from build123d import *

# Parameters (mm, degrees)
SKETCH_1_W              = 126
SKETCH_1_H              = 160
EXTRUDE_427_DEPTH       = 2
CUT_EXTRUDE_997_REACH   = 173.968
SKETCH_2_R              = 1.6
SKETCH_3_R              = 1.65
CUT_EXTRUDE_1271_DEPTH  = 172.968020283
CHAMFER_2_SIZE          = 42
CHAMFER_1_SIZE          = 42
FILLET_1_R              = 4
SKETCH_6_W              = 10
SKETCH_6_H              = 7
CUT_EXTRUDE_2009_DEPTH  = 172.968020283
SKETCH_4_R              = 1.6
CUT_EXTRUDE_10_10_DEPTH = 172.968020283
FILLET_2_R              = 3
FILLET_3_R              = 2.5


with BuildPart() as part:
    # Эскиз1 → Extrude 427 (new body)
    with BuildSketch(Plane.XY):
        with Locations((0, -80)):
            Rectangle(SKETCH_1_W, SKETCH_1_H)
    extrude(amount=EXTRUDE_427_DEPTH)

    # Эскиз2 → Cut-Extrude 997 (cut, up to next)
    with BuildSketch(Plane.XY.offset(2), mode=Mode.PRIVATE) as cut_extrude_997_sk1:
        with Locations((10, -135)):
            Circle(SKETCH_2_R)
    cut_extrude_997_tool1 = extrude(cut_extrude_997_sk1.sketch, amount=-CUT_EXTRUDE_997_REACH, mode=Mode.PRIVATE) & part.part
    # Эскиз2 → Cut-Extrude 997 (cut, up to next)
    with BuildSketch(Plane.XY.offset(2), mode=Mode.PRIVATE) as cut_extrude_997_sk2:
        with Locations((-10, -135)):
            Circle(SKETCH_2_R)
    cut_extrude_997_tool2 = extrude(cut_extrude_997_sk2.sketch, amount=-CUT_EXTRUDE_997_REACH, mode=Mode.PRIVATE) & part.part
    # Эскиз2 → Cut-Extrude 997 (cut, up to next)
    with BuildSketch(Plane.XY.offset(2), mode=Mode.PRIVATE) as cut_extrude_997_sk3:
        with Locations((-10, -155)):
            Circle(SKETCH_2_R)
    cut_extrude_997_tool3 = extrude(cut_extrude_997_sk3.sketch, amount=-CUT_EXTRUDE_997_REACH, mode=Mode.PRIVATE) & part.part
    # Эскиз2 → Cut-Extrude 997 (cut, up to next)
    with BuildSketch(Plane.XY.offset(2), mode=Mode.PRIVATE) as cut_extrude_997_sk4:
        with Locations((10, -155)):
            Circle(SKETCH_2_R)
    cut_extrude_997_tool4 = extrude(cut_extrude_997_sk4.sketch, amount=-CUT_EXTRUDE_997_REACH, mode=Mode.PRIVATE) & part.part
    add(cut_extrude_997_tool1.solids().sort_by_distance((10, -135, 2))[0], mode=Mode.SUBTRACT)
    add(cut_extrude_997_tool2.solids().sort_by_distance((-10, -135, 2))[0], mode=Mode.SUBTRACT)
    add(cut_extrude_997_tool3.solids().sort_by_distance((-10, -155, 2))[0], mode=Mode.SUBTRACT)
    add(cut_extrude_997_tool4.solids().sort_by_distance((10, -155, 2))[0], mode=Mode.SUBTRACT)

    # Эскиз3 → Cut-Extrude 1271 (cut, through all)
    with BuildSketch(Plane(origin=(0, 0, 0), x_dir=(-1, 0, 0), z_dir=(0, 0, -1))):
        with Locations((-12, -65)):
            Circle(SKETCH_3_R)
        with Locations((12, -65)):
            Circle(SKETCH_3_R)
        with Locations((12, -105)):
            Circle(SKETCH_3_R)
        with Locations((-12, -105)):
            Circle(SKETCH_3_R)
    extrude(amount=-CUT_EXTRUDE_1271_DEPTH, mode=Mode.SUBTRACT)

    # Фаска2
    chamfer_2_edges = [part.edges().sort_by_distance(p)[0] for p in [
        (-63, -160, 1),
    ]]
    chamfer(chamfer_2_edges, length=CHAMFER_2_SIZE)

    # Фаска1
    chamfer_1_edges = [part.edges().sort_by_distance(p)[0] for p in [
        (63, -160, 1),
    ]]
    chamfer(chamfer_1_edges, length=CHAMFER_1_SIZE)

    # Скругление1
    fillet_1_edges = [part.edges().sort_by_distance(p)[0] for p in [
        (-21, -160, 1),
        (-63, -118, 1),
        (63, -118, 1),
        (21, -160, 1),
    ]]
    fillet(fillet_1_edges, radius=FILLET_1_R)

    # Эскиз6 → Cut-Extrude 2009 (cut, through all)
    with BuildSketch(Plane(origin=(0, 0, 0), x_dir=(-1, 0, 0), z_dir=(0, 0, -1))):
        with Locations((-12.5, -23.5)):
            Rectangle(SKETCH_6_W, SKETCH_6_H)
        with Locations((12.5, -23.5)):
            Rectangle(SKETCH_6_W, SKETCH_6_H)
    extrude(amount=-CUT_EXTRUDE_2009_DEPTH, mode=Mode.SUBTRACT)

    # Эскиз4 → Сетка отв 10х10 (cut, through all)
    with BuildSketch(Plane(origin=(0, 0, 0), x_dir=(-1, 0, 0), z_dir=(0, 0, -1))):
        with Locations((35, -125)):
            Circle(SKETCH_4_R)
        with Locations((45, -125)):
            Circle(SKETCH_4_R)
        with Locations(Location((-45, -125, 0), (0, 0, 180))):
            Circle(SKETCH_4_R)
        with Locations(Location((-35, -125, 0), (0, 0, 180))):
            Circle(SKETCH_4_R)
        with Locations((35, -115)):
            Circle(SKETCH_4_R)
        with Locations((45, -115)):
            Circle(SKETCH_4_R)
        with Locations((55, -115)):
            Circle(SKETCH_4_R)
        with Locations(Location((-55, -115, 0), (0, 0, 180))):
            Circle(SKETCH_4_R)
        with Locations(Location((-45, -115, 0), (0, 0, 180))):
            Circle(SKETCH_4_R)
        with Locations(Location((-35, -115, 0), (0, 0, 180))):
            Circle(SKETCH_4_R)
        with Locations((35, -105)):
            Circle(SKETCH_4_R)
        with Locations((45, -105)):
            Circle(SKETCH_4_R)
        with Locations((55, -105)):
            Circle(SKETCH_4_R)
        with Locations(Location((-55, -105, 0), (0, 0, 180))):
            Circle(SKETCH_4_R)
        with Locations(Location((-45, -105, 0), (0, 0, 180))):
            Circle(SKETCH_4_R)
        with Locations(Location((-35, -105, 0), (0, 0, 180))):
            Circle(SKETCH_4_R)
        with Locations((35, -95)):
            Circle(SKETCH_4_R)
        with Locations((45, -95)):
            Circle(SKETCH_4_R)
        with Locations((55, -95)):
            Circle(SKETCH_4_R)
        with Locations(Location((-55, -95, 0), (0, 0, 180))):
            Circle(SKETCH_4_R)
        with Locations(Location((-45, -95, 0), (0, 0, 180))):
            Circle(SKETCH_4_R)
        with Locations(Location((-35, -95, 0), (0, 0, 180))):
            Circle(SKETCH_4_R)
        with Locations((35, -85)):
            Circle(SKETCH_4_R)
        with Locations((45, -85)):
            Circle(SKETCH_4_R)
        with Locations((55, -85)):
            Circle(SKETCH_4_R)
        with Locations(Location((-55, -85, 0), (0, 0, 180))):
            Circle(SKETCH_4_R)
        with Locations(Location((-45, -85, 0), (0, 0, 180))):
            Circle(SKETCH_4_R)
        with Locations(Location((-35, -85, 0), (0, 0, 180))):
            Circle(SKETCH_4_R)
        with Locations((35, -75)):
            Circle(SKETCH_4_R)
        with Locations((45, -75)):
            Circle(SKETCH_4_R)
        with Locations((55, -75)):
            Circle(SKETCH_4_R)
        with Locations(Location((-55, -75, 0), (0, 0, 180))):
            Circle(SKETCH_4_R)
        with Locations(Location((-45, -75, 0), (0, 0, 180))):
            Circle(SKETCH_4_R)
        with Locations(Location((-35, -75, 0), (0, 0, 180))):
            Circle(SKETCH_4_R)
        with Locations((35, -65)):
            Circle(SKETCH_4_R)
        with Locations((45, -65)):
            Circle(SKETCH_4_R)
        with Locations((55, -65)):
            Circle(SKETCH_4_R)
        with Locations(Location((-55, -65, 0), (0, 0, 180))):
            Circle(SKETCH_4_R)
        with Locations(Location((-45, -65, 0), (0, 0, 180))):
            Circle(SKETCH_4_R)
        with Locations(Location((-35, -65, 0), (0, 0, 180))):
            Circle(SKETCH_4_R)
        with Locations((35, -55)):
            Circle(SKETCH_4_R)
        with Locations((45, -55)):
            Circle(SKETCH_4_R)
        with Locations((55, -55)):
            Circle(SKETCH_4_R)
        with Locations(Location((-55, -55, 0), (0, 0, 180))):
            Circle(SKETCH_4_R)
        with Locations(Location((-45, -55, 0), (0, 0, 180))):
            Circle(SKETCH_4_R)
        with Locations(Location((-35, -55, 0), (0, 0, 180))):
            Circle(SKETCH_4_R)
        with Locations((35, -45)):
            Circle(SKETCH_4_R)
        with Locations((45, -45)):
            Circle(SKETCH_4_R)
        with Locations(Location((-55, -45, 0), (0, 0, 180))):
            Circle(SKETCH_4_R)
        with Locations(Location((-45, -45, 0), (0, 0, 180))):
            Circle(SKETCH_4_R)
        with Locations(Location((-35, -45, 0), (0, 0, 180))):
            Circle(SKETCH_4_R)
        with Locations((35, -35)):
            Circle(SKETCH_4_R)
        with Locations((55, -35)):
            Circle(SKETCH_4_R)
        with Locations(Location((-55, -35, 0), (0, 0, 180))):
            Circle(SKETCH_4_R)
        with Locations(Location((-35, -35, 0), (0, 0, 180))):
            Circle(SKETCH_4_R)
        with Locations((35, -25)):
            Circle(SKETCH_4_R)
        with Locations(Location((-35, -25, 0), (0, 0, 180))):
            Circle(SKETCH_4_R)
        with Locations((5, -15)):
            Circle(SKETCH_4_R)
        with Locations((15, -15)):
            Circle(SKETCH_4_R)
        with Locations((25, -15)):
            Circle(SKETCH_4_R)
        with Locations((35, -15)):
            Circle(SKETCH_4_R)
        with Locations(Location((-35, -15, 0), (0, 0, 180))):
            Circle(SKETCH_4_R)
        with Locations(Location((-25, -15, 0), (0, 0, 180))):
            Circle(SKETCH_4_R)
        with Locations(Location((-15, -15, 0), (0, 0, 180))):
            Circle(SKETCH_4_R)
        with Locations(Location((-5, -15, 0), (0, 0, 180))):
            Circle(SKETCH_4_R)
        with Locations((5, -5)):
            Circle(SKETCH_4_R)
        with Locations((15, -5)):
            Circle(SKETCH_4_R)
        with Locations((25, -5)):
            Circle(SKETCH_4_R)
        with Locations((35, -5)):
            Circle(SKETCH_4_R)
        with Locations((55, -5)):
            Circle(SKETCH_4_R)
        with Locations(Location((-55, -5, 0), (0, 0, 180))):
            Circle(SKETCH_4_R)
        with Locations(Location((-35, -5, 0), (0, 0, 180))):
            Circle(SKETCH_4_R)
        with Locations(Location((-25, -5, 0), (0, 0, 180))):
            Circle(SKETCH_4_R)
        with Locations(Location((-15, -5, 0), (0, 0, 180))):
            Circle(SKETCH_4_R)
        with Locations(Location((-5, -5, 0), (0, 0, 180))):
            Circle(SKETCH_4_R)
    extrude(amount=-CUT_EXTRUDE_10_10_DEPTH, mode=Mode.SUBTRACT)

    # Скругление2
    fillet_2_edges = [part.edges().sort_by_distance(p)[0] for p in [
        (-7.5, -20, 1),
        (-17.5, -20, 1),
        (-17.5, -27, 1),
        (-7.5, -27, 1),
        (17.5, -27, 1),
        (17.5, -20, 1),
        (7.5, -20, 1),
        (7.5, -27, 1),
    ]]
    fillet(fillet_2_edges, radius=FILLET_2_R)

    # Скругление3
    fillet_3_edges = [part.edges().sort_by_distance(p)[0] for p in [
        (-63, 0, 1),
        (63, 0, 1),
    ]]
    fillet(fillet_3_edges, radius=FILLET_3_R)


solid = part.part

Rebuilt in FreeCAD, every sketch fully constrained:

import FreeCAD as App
import Part
import Sketcher
from FreeCAD import Vector


def edges_at(feature, points):
    """Names of the edges that pass closest to the given points."""
    edges = feature.Shape.Edges
    near = lambda p: min(range(len(edges)), key=lambda i: edges[i].distToShape(Part.Vertex(*p))[0])
    return sorted({f"Edge{near(p) + 1}" for p in points})

doc = App.newDocument("Part")
body = doc.addObject("PartDesign::Body", "Body")

sketch1 = body.newObject("Sketcher::SketchObject", "Sketch")
sketch1.AttachmentSupport = (doc.getObject("XY_Plane"), [""])
sketch1.MapMode = "FlatFace"
sketch1.addGeometry(Part.LineSegment(Vector(-63, 0, 0), Vector(-63, -160, 0)), False)
sketch1.addGeometry(Part.LineSegment(Vector(-63, -160, 0), Vector(63, -160, 0)), False)
sketch1.addGeometry(Part.LineSegment(Vector(63, -160, 0), Vector(63, 0, 0)), False)
sketch1.addGeometry(Part.LineSegment(Vector(63, 0, 0), Vector(-63, 0, 0)), False)
sketch1.addConstraint(Sketcher.Constraint("Coincident", 0, 2, 1, 1))
sketch1.addConstraint(Sketcher.Constraint("Coincident", 1, 2, 2, 1))
sketch1.addConstraint(Sketcher.Constraint("Coincident", 2, 2, 3, 1))
sketch1.addConstraint(Sketcher.Constraint("Coincident", 3, 2, 0, 1))
sketch1.addConstraint(Sketcher.Constraint("Vertical", 0))
sketch1.addConstraint(Sketcher.Constraint("Horizontal", 1))
sketch1.addConstraint(Sketcher.Constraint("Vertical", 2))
sketch1.addConstraint(Sketcher.Constraint("Horizontal", 3))
sketch1.addConstraint(Sketcher.Constraint("Symmetric", 2, 2, 3, 2, -1, 1))
sketch1.addConstraint(Sketcher.Constraint("DistanceX", 1, 1, 1, 2, 126.0))
sketch1.addConstraint(Sketcher.Constraint("DistanceY", 0, 2, 0, 1, 160.0))
pad1 = body.newObject("PartDesign::Pad", "Pad")
pad1.Profile = sketch1
pad1.Length = 2

sketch2 = body.newObject("Sketcher::SketchObject", "Sketch001")
sketch2.AttachmentSupport = (doc.getObject("XY_Plane"), [""])
sketch2.MapMode = "FlatFace"
sketch2.AttachmentOffset = App.Placement(Vector(0, 0, 2), App.Rotation())
sketch2.addGeometry(Part.Circle(Vector(10, -135, 0), Vector(0, 0, 1), 1.6), False)
sketch2.addConstraint(Sketcher.Constraint("Diameter", 0, 3.2))
sketch2.addConstraint(Sketcher.Constraint("DistanceX", -1, 1, 0, 3, 10.0))
sketch2.addConstraint(Sketcher.Constraint("DistanceY", 0, 3, -1, 1, 135.0))
pocket1 = body.newObject("PartDesign::Pocket", "Pocket")
pocket1.Profile = sketch2
pocket1.Type = "UpToFirst"

sketch3 = body.newObject("Sketcher::SketchObject", "Sketch002")
sketch3.AttachmentSupport = (doc.getObject("XY_Plane"), [""])
sketch3.MapMode = "FlatFace"
sketch3.AttachmentOffset = App.Placement(Vector(0, 0, 2), App.Rotation())
sketch3.addGeometry(Part.Circle(Vector(-10, -135, 0), Vector(0, 0, 1), 1.6), False)
sketch3.addConstraint(Sketcher.Constraint("Diameter", 0, 3.2))
sketch3.addConstraint(Sketcher.Constraint("DistanceX", 0, 3, -1, 1, 10.0))
sketch3.addConstraint(Sketcher.Constraint("DistanceY", 0, 3, -1, 1, 135.0))
pocket2 = body.newObject("PartDesign::Pocket", "Pocket001")
pocket2.Profile = sketch3
pocket2.Type = "UpToFirst"

sketch4 = body.newObject("Sketcher::SketchObject", "Sketch003")
sketch4.AttachmentSupport = (doc.getObject("XY_Plane"), [""])
sketch4.MapMode = "FlatFace"
sketch4.AttachmentOffset = App.Placement(Vector(0, 0, 2), App.Rotation())
sketch4.addGeometry(Part.Circle(Vector(-10, -155, 0), Vector(0, 0, 1), 1.6), False)
sketch4.addConstraint(Sketcher.Constraint("Diameter", 0, 3.2))
sketch4.addConstraint(Sketcher.Constraint("DistanceX", 0, 3, -1, 1, 10.0))
sketch4.addConstraint(Sketcher.Constraint("DistanceY", 0, 3, -1, 1, 155.0))
pocket3 = body.newObject("PartDesign::Pocket", "Pocket002")
pocket3.Profile = sketch4
pocket3.Type = "UpToFirst"

sketch5 = body.newObject("Sketcher::SketchObject", "Sketch004")
sketch5.AttachmentSupport = (doc.getObject("XY_Plane"), [""])
sketch5.MapMode = "FlatFace"
sketch5.AttachmentOffset = App.Placement(Vector(0, 0, 2), App.Rotation())
sketch5.addGeometry(Part.Circle(Vector(10, -155, 0), Vector(0, 0, 1), 1.6), False)
sketch5.addConstraint(Sketcher.Constraint("Diameter", 0, 3.2))
sketch5.addConstraint(Sketcher.Constraint("DistanceX", -1, 1, 0, 3, 10.0))
sketch5.addConstraint(Sketcher.Constraint("DistanceY", 0, 3, -1, 1, 155.0))
pocket4 = body.newObject("PartDesign::Pocket", "Pocket003")
pocket4.Profile = sketch5
pocket4.Type = "UpToFirst"

sketch6 = body.newObject("Sketcher::SketchObject", "Sketch005")
sketch6.AttachmentSupport = (doc.getObject("XY_Plane"), [""])
sketch6.MapMode = "FlatFace"
sketch6.addGeometry(Part.Circle(Vector(12, -65, 0), Vector(0, 0, 1), 1.6), False)
sketch6.addGeometry(Part.Circle(Vector(-12, -65, 0), Vector(0, 0, 1), 1.6), False)
sketch6.addGeometry(Part.Circle(Vector(-12, -105, 0), Vector(0, 0, 1), 1.6), False)
sketch6.addGeometry(Part.Circle(Vector(12, -105, 0), Vector(0, 0, 1), 1.6), False)
sketch6.addConstraint(Sketcher.Constraint("Equal", 0, 1))
sketch6.addConstraint(Sketcher.Constraint("Equal", 1, 2))
sketch6.addConstraint(Sketcher.Constraint("Equal", 2, 3))
sketch6.addConstraint(Sketcher.Constraint("Symmetric", 0, 3, 1, 3, -2))
sketch6.addConstraint(Sketcher.Constraint("Symmetric", 2, 3, 3, 3, -2))
sketch6.addConstraint(Sketcher.Constraint("Vertical", 1, 3, 2, 3))
sketch6.addConstraint(Sketcher.Constraint("Diameter", 0, 3.3))
sketch6.addConstraint(Sketcher.Constraint("DistanceX", -1, 1, 0, 3, 12.0))
sketch6.addConstraint(Sketcher.Constraint("DistanceY", 0, 3, -1, 1, 65.0))
sketch6.addConstraint(Sketcher.Constraint("DistanceY", 2, 3, -1, 1, 105.0))
pocket5 = body.newObject("PartDesign::Pocket", "Pocket004")
pocket5.Profile = sketch6
pocket5.Type = "ThroughAll"
pocket5.Reversed = True
doc.recompute()

chamfer = body.newObject("PartDesign::Chamfer", "Chamfer")
chamfer.Base = (pocket5, edges_at(pocket5, [(-63, -160, 1)]))
chamfer.Size = 42
doc.recompute()

chamfer2 = body.newObject("PartDesign::Chamfer", "Chamfer001")
chamfer2.Base = (chamfer, edges_at(chamfer, [(63, -160, 1)]))
chamfer2.Size = 42
doc.recompute()

fillet = body.newObject("PartDesign::Fillet", "Fillet")
fillet.Base = (chamfer2, edges_at(chamfer2, [
    (-21, -160, 1),
    (-63, -118, 1),
    (63, -118, 1),
    (21, -160, 1),
]))
fillet.Radius = 4

sketch7 = body.newObject("Sketcher::SketchObject", "Sketch006")
sketch7.AttachmentSupport = (doc.getObject("XY_Plane"), [""])
sketch7.MapMode = "FlatFace"
sketch7.addGeometry(Part.LineSegment(Vector(18, -20, 0), Vector(18, -27, 0)), False)
sketch7.addGeometry(Part.LineSegment(Vector(18, -27, 0), Vector(8, -27, 0)), False)
sketch7.addGeometry(Part.LineSegment(Vector(8, -27, 0), Vector(8, -20, 0)), False)
sketch7.addGeometry(Part.LineSegment(Vector(8, -20, 0), Vector(18, -20, 0)), False)
sketch7.addGeometry(Part.LineSegment(Vector(-8, -20, 0), Vector(-8, -27, 0)), False)
sketch7.addGeometry(Part.LineSegment(Vector(-8, -27, 0), Vector(-18, -27, 0)), False)
sketch7.addGeometry(Part.LineSegment(Vector(-18, -27, 0), Vector(-18, -20, 0)), False)
sketch7.addGeometry(Part.LineSegment(Vector(-18, -20, 0), Vector(-8, -20, 0)), False)
sketch7.addConstraint(Sketcher.Constraint("Coincident", 0, 2, 1, 1))
sketch7.addConstraint(Sketcher.Constraint("Coincident", 1, 2, 2, 1))
sketch7.addConstraint(Sketcher.Constraint("Coincident", 2, 2, 3, 1))
sketch7.addConstraint(Sketcher.Constraint("Coincident", 3, 2, 0, 1))
sketch7.addConstraint(Sketcher.Constraint("Coincident", 4, 2, 5, 1))
sketch7.addConstraint(Sketcher.Constraint("Coincident", 5, 2, 6, 1))
sketch7.addConstraint(Sketcher.Constraint("Coincident", 6, 2, 7, 1))
sketch7.addConstraint(Sketcher.Constraint("Coincident", 7, 2, 4, 1))
sketch7.addConstraint(Sketcher.Constraint("Vertical", 0))
sketch7.addConstraint(Sketcher.Constraint("Horizontal", 1))
sketch7.addConstraint(Sketcher.Constraint("Vertical", 2))
sketch7.addConstraint(Sketcher.Constraint("Horizontal", 3))
sketch7.addConstraint(Sketcher.Constraint("Vertical", 4))
sketch7.addConstraint(Sketcher.Constraint("Horizontal", 5))
sketch7.addConstraint(Sketcher.Constraint("Vertical", 6))
sketch7.addConstraint(Sketcher.Constraint("Horizontal", 7))
sketch7.addConstraint(Sketcher.Constraint("Symmetric", 1, 2, 4, 2, -2))
sketch7.addConstraint(Sketcher.Constraint("Symmetric", 3, 2, 6, 2, -2))
sketch7.addConstraint(Sketcher.Constraint("DistanceX", 1, 2, 1, 1, 10.0))
sketch7.addConstraint(Sketcher.Constraint("DistanceY", 0, 2, 0, 1, 7.0))
sketch7.addConstraint(Sketcher.Constraint("DistanceY", 0, 2, -1, 1, 27.0))
sketch7.addConstraint(Sketcher.Constraint("DistanceX", 4, 2, 1, 2, 15.0))
pocket6 = body.newObject("PartDesign::Pocket", "Pocket005")
pocket6.Profile = sketch7
pocket6.Type = "ThroughAll"
pocket6.Reversed = True

sketch8 = body.newObject("Sketcher::SketchObject", "Sketch007")
sketch8.AttachmentSupport = (doc.getObject("XY_Plane"), [""])
sketch8.MapMode = "FlatFace"
sketch8.addGeometry(Part.Circle(Vector(-35, -125, 0), Vector(0, 0, 1), 1.6), False)
sketch8.addGeometry(Part.Circle(Vector(-45, -125, 0), Vector(0, 0, 1), 1.6), False)
sketch8.addGeometry(Part.Circle(Vector(45, -125, 0), Vector(0, 0, 1), 1.6), False)
sketch8.addGeometry(Part.Circle(Vector(35, -125, 0), Vector(0, 0, 1), 1.6), False)
sketch8.addGeometry(Part.Circle(Vector(-35, -115, 0), Vector(0, 0, 1), 1.6), False)
sketch8.addGeometry(Part.Circle(Vector(-45, -115, 0), Vector(0, 0, 1), 1.6), False)
sketch8.addGeometry(Part.Circle(Vector(-55, -115, 0), Vector(0, 0, 1), 1.6), False)
sketch8.addGeometry(Part.Circle(Vector(55, -115, 0), Vector(0, 0, 1), 1.6), False)
sketch8.addGeometry(Part.Circle(Vector(45, -115, 0), Vector(0, 0, 1), 1.6), False)
sketch8.addGeometry(Part.Circle(Vector(35, -115, 0), Vector(0, 0, 1), 1.6), False)
sketch8.addGeometry(Part.Circle(Vector(-35, -105, 0), Vector(0, 0, 1), 1.6), False)
sketch8.addGeometry(Part.Circle(Vector(-45, -105, 0), Vector(0, 0, 1), 1.6), False)
sketch8.addGeometry(Part.Circle(Vector(-55, -105, 0), Vector(0, 0, 1), 1.6), False)
sketch8.addGeometry(Part.Circle(Vector(55, -105, 0), Vector(0, 0, 1), 1.6), False)
sketch8.addGeometry(Part.Circle(Vector(45, -105, 0), Vector(0, 0, 1), 1.6), False)
sketch8.addGeometry(Part.Circle(Vector(35, -105, 0), Vector(0, 0, 1), 1.6), False)
sketch8.addGeometry(Part.Circle(Vector(-35, -95, 0), Vector(0, 0, 1), 1.6), False)
sketch8.addGeometry(Part.Circle(Vector(-45, -95, 0), Vector(0, 0, 1), 1.6), False)
sketch8.addGeometry(Part.Circle(Vector(-55, -95, 0), Vector(0, 0, 1), 1.6), False)
sketch8.addGeometry(Part.Circle(Vector(55, -95, 0), Vector(0, 0, 1), 1.6), False)
sketch8.addGeometry(Part.Circle(Vector(45, -95, 0), Vector(0, 0, 1), 1.6), False)
sketch8.addGeometry(Part.Circle(Vector(35, -95, 0), Vector(0, 0, 1), 1.6), False)
sketch8.addGeometry(Part.Circle(Vector(-35, -85, 0), Vector(0, 0, 1), 1.6), False)
sketch8.addGeometry(Part.Circle(Vector(-45, -85, 0), Vector(0, 0, 1), 1.6), False)
sketch8.addGeometry(Part.Circle(Vector(-55, -85, 0), Vector(0, 0, 1), 1.6), False)
sketch8.addGeometry(Part.Circle(Vector(55, -85, 0), Vector(0, 0, 1), 1.6), False)
sketch8.addGeometry(Part.Circle(Vector(45, -85, 0), Vector(0, 0, 1), 1.6), False)
sketch8.addGeometry(Part.Circle(Vector(35, -85, 0), Vector(0, 0, 1), 1.6), False)
sketch8.addGeometry(Part.Circle(Vector(-35, -75, 0), Vector(0, 0, 1), 1.6), False)
sketch8.addGeometry(Part.Circle(Vector(-45, -75, 0), Vector(0, 0, 1), 1.6), False)
sketch8.addGeometry(Part.Circle(Vector(-55, -75, 0), Vector(0, 0, 1), 1.6), False)
sketch8.addGeometry(Part.Circle(Vector(55, -75, 0), Vector(0, 0, 1), 1.6), False)
sketch8.addGeometry(Part.Circle(Vector(45, -75, 0), Vector(0, 0, 1), 1.6), False)
sketch8.addGeometry(Part.Circle(Vector(35, -75, 0), Vector(0, 0, 1), 1.6), False)
sketch8.addGeometry(Part.Circle(Vector(-35, -65, 0), Vector(0, 0, 1), 1.6), False)
sketch8.addGeometry(Part.Circle(Vector(-45, -65, 0), Vector(0, 0, 1), 1.6), False)
sketch8.addGeometry(Part.Circle(Vector(-55, -65, 0), Vector(0, 0, 1), 1.6), False)
sketch8.addGeometry(Part.Circle(Vector(55, -65, 0), Vector(0, 0, 1), 1.6), False)
sketch8.addGeometry(Part.Circle(Vector(45, -65, 0), Vector(0, 0, 1), 1.6), False)
sketch8.addGeometry(Part.Circle(Vector(35, -65, 0), Vector(0, 0, 1), 1.6), False)
sketch8.addGeometry(Part.Circle(Vector(-35, -55, 0), Vector(0, 0, 1), 1.6), False)
sketch8.addGeometry(Part.Circle(Vector(-45, -55, 0), Vector(0, 0, 1), 1.6), False)
sketch8.addGeometry(Part.Circle(Vector(-55, -55, 0), Vector(0, 0, 1), 1.6), False)
sketch8.addGeometry(Part.Circle(Vector(55, -55, 0), Vector(0, 0, 1), 1.6), False)
sketch8.addGeometry(Part.Circle(Vector(45, -55, 0), Vector(0, 0, 1), 1.6), False)
sketch8.addGeometry(Part.Circle(Vector(35, -55, 0), Vector(0, 0, 1), 1.6), False)
sketch8.addGeometry(Part.Circle(Vector(-35, -45, 0), Vector(0, 0, 1), 1.6), False)
sketch8.addGeometry(Part.Circle(Vector(-45, -45, 0), Vector(0, 0, 1), 1.6), False)
sketch8.addGeometry(Part.Circle(Vector(55, -45, 0), Vector(0, 0, 1), 1.6), False)
sketch8.addGeometry(Part.Circle(Vector(45, -45, 0), Vector(0, 0, 1), 1.6), False)
sketch8.addGeometry(Part.Circle(Vector(35, -45, 0), Vector(0, 0, 1), 1.6), False)
sketch8.addGeometry(Part.Circle(Vector(-35, -35, 0), Vector(0, 0, 1), 1.6), False)
sketch8.addGeometry(Part.Circle(Vector(-55, -35, 0), Vector(0, 0, 1), 1.6), False)
sketch8.addGeometry(Part.Circle(Vector(55, -35, 0), Vector(0, 0, 1), 1.6), False)
sketch8.addGeometry(Part.Circle(Vector(35, -35, 0), Vector(0, 0, 1), 1.6), False)
sketch8.addGeometry(Part.Circle(Vector(-35, -25, 0), Vector(0, 0, 1), 1.6), False)
sketch8.addGeometry(Part.Circle(Vector(35, -25, 0), Vector(0, 0, 1), 1.6), False)
sketch8.addGeometry(Part.Circle(Vector(-5, -15, 0), Vector(0, 0, 1), 1.6), False)
sketch8.addGeometry(Part.Circle(Vector(-15, -15, 0), Vector(0, 0, 1), 1.6), False)
sketch8.addGeometry(Part.Circle(Vector(-25, -15, 0), Vector(0, 0, 1), 1.6), False)
sketch8.addGeometry(Part.Circle(Vector(-35, -15, 0), Vector(0, 0, 1), 1.6), False)
sketch8.addGeometry(Part.Circle(Vector(35, -15, 0), Vector(0, 0, 1), 1.6), False)
sketch8.addGeometry(Part.Circle(Vector(25, -15, 0), Vector(0, 0, 1), 1.6), False)
sketch8.addGeometry(Part.Circle(Vector(15, -15, 0), Vector(0, 0, 1), 1.6), False)
sketch8.addGeometry(Part.Circle(Vector(5, -15, 0), Vector(0, 0, 1), 1.6), False)
sketch8.addGeometry(Part.Circle(Vector(-5, -5, 0), Vector(0, 0, 1), 1.6), False)
sketch8.addGeometry(Part.Circle(Vector(-15, -5, 0), Vector(0, 0, 1), 1.6), False)
sketch8.addGeometry(Part.Circle(Vector(-25, -5, 0), Vector(0, 0, 1), 1.6), False)
sketch8.addGeometry(Part.Circle(Vector(-35, -5, 0), Vector(0, 0, 1), 1.6), False)
sketch8.addGeometry(Part.Circle(Vector(-55, -5, 0), Vector(0, 0, 1), 1.6), False)
sketch8.addGeometry(Part.Circle(Vector(55, -5, 0), Vector(0, 0, 1), 1.6), False)
sketch8.addGeometry(Part.Circle(Vector(35, -5, 0), Vector(0, 0, 1), 1.6), False)
sketch8.addGeometry(Part.Circle(Vector(25, -5, 0), Vector(0, 0, 1), 1.6), False)
sketch8.addGeometry(Part.Circle(Vector(15, -5, 0), Vector(0, 0, 1), 1.6), False)
sketch8.addGeometry(Part.Circle(Vector(5, -5, 0), Vector(0, 0, 1), 1.6), False)
sketch8.addConstraint(Sketcher.Constraint("Equal", 0, 1))
sketch8.addConstraint(Sketcher.Constraint("Equal", 1, 2))
sketch8.addConstraint(Sketcher.Constraint("Equal", 2, 3))
sketch8.addConstraint(Sketcher.Constraint("Equal", 3, 4))
sketch8.addConstraint(Sketcher.Constraint("Equal", 4, 5))
sketch8.addConstraint(Sketcher.Constraint("Equal", 5, 6))
sketch8.addConstraint(Sketcher.Constraint("Equal", 6, 7))
sketch8.addConstraint(Sketcher.Constraint("Equal", 7, 8))
sketch8.addConstraint(Sketcher.Constraint("Equal", 8, 9))
sketch8.addConstraint(Sketcher.Constraint("Equal", 9, 10))
sketch8.addConstraint(Sketcher.Constraint("Equal", 10, 11))
sketch8.addConstraint(Sketcher.Constraint("Equal", 11, 12))
sketch8.addConstraint(Sketcher.Constraint("Equal", 12, 13))
sketch8.addConstraint(Sketcher.Constraint("Equal", 13, 14))
sketch8.addConstraint(Sketcher.Constraint("Equal", 14, 15))
sketch8.addConstraint(Sketcher.Constraint("Equal", 15, 16))
sketch8.addConstraint(Sketcher.Constraint("Equal", 16, 17))
sketch8.addConstraint(Sketcher.Constraint("Equal", 17, 18))
sketch8.addConstraint(Sketcher.Constraint("Equal", 18, 19))
sketch8.addConstraint(Sketcher.Constraint("Equal", 19, 20))
sketch8.addConstraint(Sketcher.Constraint("Equal", 20, 21))
sketch8.addConstraint(Sketcher.Constraint("Equal", 21, 22))
sketch8.addConstraint(Sketcher.Constraint("Equal", 22, 23))
sketch8.addConstraint(Sketcher.Constraint("Equal", 23, 24))
sketch8.addConstraint(Sketcher.Constraint("Equal", 24, 25))
sketch8.addConstraint(Sketcher.Constraint("Equal", 25, 26))
sketch8.addConstraint(Sketcher.Constraint("Equal", 26, 27))
sketch8.addConstraint(Sketcher.Constraint("Equal", 27, 28))
sketch8.addConstraint(Sketcher.Constraint("Equal", 28, 29))
sketch8.addConstraint(Sketcher.Constraint("Equal", 29, 30))
sketch8.addConstraint(Sketcher.Constraint("Equal", 30, 31))
sketch8.addConstraint(Sketcher.Constraint("Equal", 31, 32))
sketch8.addConstraint(Sketcher.Constraint("Equal", 32, 33))
sketch8.addConstraint(Sketcher.Constraint("Equal", 33, 34))
sketch8.addConstraint(Sketcher.Constraint("Equal", 34, 35))
sketch8.addConstraint(Sketcher.Constraint("Equal", 35, 36))
sketch8.addConstraint(Sketcher.Constraint("Equal", 36, 37))
sketch8.addConstraint(Sketcher.Constraint("Equal", 37, 38))
sketch8.addConstraint(Sketcher.Constraint("Equal", 38, 39))
sketch8.addConstraint(Sketcher.Constraint("Equal", 39, 40))
sketch8.addConstraint(Sketcher.Constraint("Equal", 40, 41))
sketch8.addConstraint(Sketcher.Constraint("Equal", 41, 42))
sketch8.addConstraint(Sketcher.Constraint("Equal", 42, 43))
sketch8.addConstraint(Sketcher.Constraint("Equal", 43, 44))
sketch8.addConstraint(Sketcher.Constraint("Equal", 44, 45))
sketch8.addConstraint(Sketcher.Constraint("Equal", 45, 46))
sketch8.addConstraint(Sketcher.Constraint("Equal", 46, 47))
sketch8.addConstraint(Sketcher.Constraint("Equal", 47, 48))
sketch8.addConstraint(Sketcher.Constraint("Equal", 48, 49))
sketch8.addConstraint(Sketcher.Constraint("Equal", 49, 50))
sketch8.addConstraint(Sketcher.Constraint("Equal", 50, 51))
sketch8.addConstraint(Sketcher.Constraint("Equal", 51, 52))
sketch8.addConstraint(Sketcher.Constraint("Equal", 52, 53))
sketch8.addConstraint(Sketcher.Constraint("Equal", 53, 54))
sketch8.addConstraint(Sketcher.Constraint("Equal", 54, 55))
sketch8.addConstraint(Sketcher.Constraint("Equal", 55, 56))
sketch8.addConstraint(Sketcher.Constraint("Equal", 56, 57))
sketch8.addConstraint(Sketcher.Constraint("Equal", 57, 58))
sketch8.addConstraint(Sketcher.Constraint("Equal", 58, 59))
sketch8.addConstraint(Sketcher.Constraint("Equal", 59, 60))
sketch8.addConstraint(Sketcher.Constraint("Equal", 60, 61))
sketch8.addConstraint(Sketcher.Constraint("Equal", 61, 62))
sketch8.addConstraint(Sketcher.Constraint("Equal", 62, 63))
sketch8.addConstraint(Sketcher.Constraint("Equal", 63, 64))
sketch8.addConstraint(Sketcher.Constraint("Equal", 64, 65))
sketch8.addConstraint(Sketcher.Constraint("Equal", 65, 66))
sketch8.addConstraint(Sketcher.Constraint("Equal", 66, 67))
sketch8.addConstraint(Sketcher.Constraint("Equal", 67, 68))
sketch8.addConstraint(Sketcher.Constraint("Equal", 68, 69))
sketch8.addConstraint(Sketcher.Constraint("Equal", 69, 70))
sketch8.addConstraint(Sketcher.Constraint("Equal", 70, 71))
sketch8.addConstraint(Sketcher.Constraint("Equal", 71, 72))
sketch8.addConstraint(Sketcher.Constraint("Equal", 72, 73))
sketch8.addConstraint(Sketcher.Constraint("Equal", 73, 74))
sketch8.addConstraint(Sketcher.Constraint("Symmetric", 1, 3, 2, 3, -2))
sketch8.addConstraint(Sketcher.Constraint("Symmetric", 0, 3, 3, 3, -2))
sketch8.addConstraint(Sketcher.Constraint("Symmetric", 6, 3, 7, 3, -2))
sketch8.addConstraint(Sketcher.Constraint("Symmetric", 5, 3, 8, 3, -2))
sketch8.addConstraint(Sketcher.Constraint("Symmetric", 4, 3, 9, 3, -2))
sketch8.addConstraint(Sketcher.Constraint("Symmetric", 12, 3, 13, 3, -2))
sketch8.addConstraint(Sketcher.Constraint("Symmetric", 11, 3, 14, 3, -2))
sketch8.addConstraint(Sketcher.Constraint("Symmetric", 10, 3, 15, 3, -2))
sketch8.addConstraint(Sketcher.Constraint("Symmetric", 18, 3, 19, 3, -2))
sketch8.addConstraint(Sketcher.Constraint("Symmetric", 17, 3, 20, 3, -2))
sketch8.addConstraint(Sketcher.Constraint("Symmetric", 16, 3, 21, 3, -2))
sketch8.addConstraint(Sketcher.Constraint("Symmetric", 24, 3, 25, 3, -2))
sketch8.addConstraint(Sketcher.Constraint("Symmetric", 23, 3, 26, 3, -2))
sketch8.addConstraint(Sketcher.Constraint("Symmetric", 22, 3, 27, 3, -2))
sketch8.addConstraint(Sketcher.Constraint("Symmetric", 30, 3, 31, 3, -2))
sketch8.addConstraint(Sketcher.Constraint("Symmetric", 29, 3, 32, 3, -2))
sketch8.addConstraint(Sketcher.Constraint("Symmetric", 28, 3, 33, 3, -2))
sketch8.addConstraint(Sketcher.Constraint("Symmetric", 36, 3, 37, 3, -2))
sketch8.addConstraint(Sketcher.Constraint("Symmetric", 35, 3, 38, 3, -2))
sketch8.addConstraint(Sketcher.Constraint("Symmetric", 34, 3, 39, 3, -2))
sketch8.addConstraint(Sketcher.Constraint("Symmetric", 42, 3, 43, 3, -2))
sketch8.addConstraint(Sketcher.Constraint("Symmetric", 41, 3, 44, 3, -2))
sketch8.addConstraint(Sketcher.Constraint("Symmetric", 40, 3, 45, 3, -2))
sketch8.addConstraint(Sketcher.Constraint("Symmetric", 47, 3, 49, 3, -2))
sketch8.addConstraint(Sketcher.Constraint("Symmetric", 46, 3, 50, 3, -2))
sketch8.addConstraint(Sketcher.Constraint("Symmetric", 52, 3, 53, 3, -2))
sketch8.addConstraint(Sketcher.Constraint("Symmetric", 51, 3, 54, 3, -2))
sketch8.addConstraint(Sketcher.Constraint("Symmetric", 55, 3, 56, 3, -2))
sketch8.addConstraint(Sketcher.Constraint("Symmetric", 60, 3, 61, 3, -2))
sketch8.addConstraint(Sketcher.Constraint("Symmetric", 59, 3, 62, 3, -2))
sketch8.addConstraint(Sketcher.Constraint("Symmetric", 58, 3, 63, 3, -2))
sketch8.addConstraint(Sketcher.Constraint("Symmetric", 57, 3, 64, 3, -2))
sketch8.addConstraint(Sketcher.Constraint("Symmetric", 69, 3, 70, 3, -2))
sketch8.addConstraint(Sketcher.Constraint("Symmetric", 68, 3, 71, 3, -2))
sketch8.addConstraint(Sketcher.Constraint("Symmetric", 67, 3, 72, 3, -2))
sketch8.addConstraint(Sketcher.Constraint("Symmetric", 66, 3, 73, 3, -2))
sketch8.addConstraint(Sketcher.Constraint("Symmetric", 65, 3, 74, 3, -2))
sketch8.addConstraint(Sketcher.Constraint("Horizontal", 0, 3, 1, 3))
sketch8.addConstraint(Sketcher.Constraint("Horizontal", 4, 3, 5, 3))
sketch8.addConstraint(Sketcher.Constraint("Horizontal", 5, 3, 6, 3))
sketch8.addConstraint(Sketcher.Constraint("Horizontal", 10, 3, 11, 3))
sketch8.addConstraint(Sketcher.Constraint("Horizontal", 11, 3, 12, 3))
sketch8.addConstraint(Sketcher.Constraint("Horizontal", 16, 3, 17, 3))
sketch8.addConstraint(Sketcher.Constraint("Horizontal", 17, 3, 18, 3))
sketch8.addConstraint(Sketcher.Constraint("Horizontal", 22, 3, 23, 3))
sketch8.addConstraint(Sketcher.Constraint("Horizontal", 23, 3, 24, 3))
sketch8.addConstraint(Sketcher.Constraint("Horizontal", 28, 3, 29, 3))
sketch8.addConstraint(Sketcher.Constraint("Horizontal", 29, 3, 30, 3))
sketch8.addConstraint(Sketcher.Constraint("Horizontal", 34, 3, 35, 3))
sketch8.addConstraint(Sketcher.Constraint("Horizontal", 35, 3, 36, 3))
sketch8.addConstraint(Sketcher.Constraint("Horizontal", 40, 3, 41, 3))
sketch8.addConstraint(Sketcher.Constraint("Horizontal", 41, 3, 42, 3))
sketch8.addConstraint(Sketcher.Constraint("Horizontal", 46, 3, 47, 3))
sketch8.addConstraint(Sketcher.Constraint("Horizontal", 47, 3, 48, 3))
sketch8.addConstraint(Sketcher.Constraint("Horizontal", 51, 3, 52, 3))
sketch8.addConstraint(Sketcher.Constraint("Horizontal", 57, 3, 58, 3))
sketch8.addConstraint(Sketcher.Constraint("Horizontal", 58, 3, 59, 3))
sketch8.addConstraint(Sketcher.Constraint("Horizontal", 59, 3, 60, 3))
sketch8.addConstraint(Sketcher.Constraint("Horizontal", 65, 3, 66, 3))
sketch8.addConstraint(Sketcher.Constraint("Horizontal", 66, 3, 67, 3))
sketch8.addConstraint(Sketcher.Constraint("Horizontal", 67, 3, 68, 3))
sketch8.addConstraint(Sketcher.Constraint("Horizontal", 68, 3, 69, 3))
sketch8.addConstraint(Sketcher.Constraint("Vertical", 0, 3, 4, 3))
sketch8.addConstraint(Sketcher.Constraint("Vertical", 1, 3, 5, 3))
sketch8.addConstraint(Sketcher.Constraint("Vertical", 4, 3, 10, 3))
sketch8.addConstraint(Sketcher.Constraint("Vertical", 5, 3, 11, 3))
sketch8.addConstraint(Sketcher.Constraint("Vertical", 6, 3, 12, 3))
sketch8.addConstraint(Sketcher.Constraint("Vertical", 10, 3, 16, 3))
sketch8.addConstraint(Sketcher.Constraint("Vertical", 11, 3, 17, 3))
sketch8.addConstraint(Sketcher.Constraint("Vertical", 12, 3, 18, 3))
sketch8.addConstraint(Sketcher.Constraint("Vertical", 16, 3, 22, 3))
sketch8.addConstraint(Sketcher.Constraint("Vertical", 17, 3, 23, 3))
sketch8.addConstraint(Sketcher.Constraint("Vertical", 18, 3, 24, 3))
sketch8.addConstraint(Sketcher.Constraint("Vertical", 22, 3, 28, 3))
sketch8.addConstraint(Sketcher.Constraint("Vertical", 23, 3, 29, 3))
sketch8.addConstraint(Sketcher.Constraint("Vertical", 24, 3, 30, 3))
sketch8.addConstraint(Sketcher.Constraint("Vertical", 28, 3, 34, 3))
sketch8.addConstraint(Sketcher.Constraint("Vertical", 29, 3, 35, 3))
sketch8.addConstraint(Sketcher.Constraint("Vertical", 30, 3, 36, 3))
sketch8.addConstraint(Sketcher.Constraint("Vertical", 34, 3, 40, 3))
sketch8.addConstraint(Sketcher.Constraint("Vertical", 35, 3, 41, 3))
sketch8.addConstraint(Sketcher.Constraint("Vertical", 36, 3, 42, 3))
sketch8.addConstraint(Sketcher.Constraint("Vertical", 40, 3, 46, 3))
sketch8.addConstraint(Sketcher.Constraint("Vertical", 41, 3, 47, 3))
sketch8.addConstraint(Sketcher.Constraint("Vertical", 43, 3, 48, 3))
sketch8.addConstraint(Sketcher.Constraint("Vertical", 46, 3, 51, 3))
sketch8.addConstraint(Sketcher.Constraint("Vertical", 42, 3, 52, 3))
sketch8.addConstraint(Sketcher.Constraint("Vertical", 51, 3, 55, 3))
sketch8.addConstraint(Sketcher.Constraint("Vertical", 55, 3, 60, 3))
sketch8.addConstraint(Sketcher.Constraint("Vertical", 57, 3, 65, 3))
sketch8.addConstraint(Sketcher.Constraint("Vertical", 58, 3, 66, 3))
sketch8.addConstraint(Sketcher.Constraint("Vertical", 59, 3, 67, 3))
sketch8.addConstraint(Sketcher.Constraint("Vertical", 60, 3, 68, 3))
sketch8.addConstraint(Sketcher.Constraint("Vertical", 52, 3, 69, 3))
sketch8.addConstraint(Sketcher.Constraint("Diameter", 0, 3.2))
sketch8.addConstraint(Sketcher.Constraint("DistanceX", 0, 3, -1, 1, 35.0))
sketch8.addConstraint(Sketcher.Constraint("DistanceY", 0, 3, -1, 1, 125.0))
sketch8.addConstraint(Sketcher.Constraint("DistanceX", 1, 3, -1, 1, 45.0))
sketch8.addConstraint(Sketcher.Constraint("DistanceY", 4, 3, -1, 1, 115.0))
sketch8.addConstraint(Sketcher.Constraint("DistanceX", 6, 3, -1, 1, 55.0))
sketch8.addConstraint(Sketcher.Constraint("DistanceY", 10, 3, -1, 1, 105.0))
sketch8.addConstraint(Sketcher.Constraint("DistanceY", 16, 3, -1, 1, 95.0))
sketch8.addConstraint(Sketcher.Constraint("DistanceY", 22, 3, -1, 1, 85.0))
sketch8.addConstraint(Sketcher.Constraint("DistanceY", 28, 3, -1, 1, 75.0))
sketch8.addConstraint(Sketcher.Constraint("DistanceY", 34, 3, -1, 1, 65.0))
sketch8.addConstraint(Sketcher.Constraint("DistanceY", 40, 3, -1, 1, 55.0))
sketch8.addConstraint(Sketcher.Constraint("DistanceY", 46, 3, -1, 1, 45.0))
sketch8.addConstraint(Sketcher.Constraint("DistanceY", 51, 3, -1, 1, 35.0))
sketch8.addConstraint(Sketcher.Constraint("DistanceY", 55, 3, -1, 1, 25.0))
sketch8.addConstraint(Sketcher.Constraint("DistanceX", 57, 3, -1, 1, 5.0))
sketch8.addConstraint(Sketcher.Constraint("DistanceY", 57, 3, -1, 1, 15.0))
sketch8.addConstraint(Sketcher.Constraint("DistanceX", 58, 3, -1, 1, 15.0))
sketch8.addConstraint(Sketcher.Constraint("DistanceX", 59, 3, -1, 1, 25.0))
sketch8.addConstraint(Sketcher.Constraint("DistanceY", 65, 3, -1, 1, 5.0))
pocket7 = body.newObject("PartDesign::Pocket", "Pocket006")
pocket7.Profile = sketch8
pocket7.Type = "ThroughAll"
pocket7.Reversed = True
doc.recompute()

fillet2 = body.newObject("PartDesign::Fillet", "Fillet001")
fillet2.Base = (pocket7, edges_at(pocket7, [
    (-7.5, -20, 1),
    (-17.5, -20, 1),
    (-17.5, -27, 1),
    (-7.5, -27, 1),
    (17.5, -27, 1),
    (17.5, -20, 1),
    (7.5, -20, 1),
    (7.5, -27, 1),
]))
fillet2.Radius = 3
doc.recompute()

fillet3 = body.newObject("PartDesign::Fillet", "Fillet002")
fillet3.Base = (fillet2, edges_at(fillet2, [(-63, 0, 1), (63, 0, 1)]))
fillet3.Radius = 2.5

doc.recompute()
